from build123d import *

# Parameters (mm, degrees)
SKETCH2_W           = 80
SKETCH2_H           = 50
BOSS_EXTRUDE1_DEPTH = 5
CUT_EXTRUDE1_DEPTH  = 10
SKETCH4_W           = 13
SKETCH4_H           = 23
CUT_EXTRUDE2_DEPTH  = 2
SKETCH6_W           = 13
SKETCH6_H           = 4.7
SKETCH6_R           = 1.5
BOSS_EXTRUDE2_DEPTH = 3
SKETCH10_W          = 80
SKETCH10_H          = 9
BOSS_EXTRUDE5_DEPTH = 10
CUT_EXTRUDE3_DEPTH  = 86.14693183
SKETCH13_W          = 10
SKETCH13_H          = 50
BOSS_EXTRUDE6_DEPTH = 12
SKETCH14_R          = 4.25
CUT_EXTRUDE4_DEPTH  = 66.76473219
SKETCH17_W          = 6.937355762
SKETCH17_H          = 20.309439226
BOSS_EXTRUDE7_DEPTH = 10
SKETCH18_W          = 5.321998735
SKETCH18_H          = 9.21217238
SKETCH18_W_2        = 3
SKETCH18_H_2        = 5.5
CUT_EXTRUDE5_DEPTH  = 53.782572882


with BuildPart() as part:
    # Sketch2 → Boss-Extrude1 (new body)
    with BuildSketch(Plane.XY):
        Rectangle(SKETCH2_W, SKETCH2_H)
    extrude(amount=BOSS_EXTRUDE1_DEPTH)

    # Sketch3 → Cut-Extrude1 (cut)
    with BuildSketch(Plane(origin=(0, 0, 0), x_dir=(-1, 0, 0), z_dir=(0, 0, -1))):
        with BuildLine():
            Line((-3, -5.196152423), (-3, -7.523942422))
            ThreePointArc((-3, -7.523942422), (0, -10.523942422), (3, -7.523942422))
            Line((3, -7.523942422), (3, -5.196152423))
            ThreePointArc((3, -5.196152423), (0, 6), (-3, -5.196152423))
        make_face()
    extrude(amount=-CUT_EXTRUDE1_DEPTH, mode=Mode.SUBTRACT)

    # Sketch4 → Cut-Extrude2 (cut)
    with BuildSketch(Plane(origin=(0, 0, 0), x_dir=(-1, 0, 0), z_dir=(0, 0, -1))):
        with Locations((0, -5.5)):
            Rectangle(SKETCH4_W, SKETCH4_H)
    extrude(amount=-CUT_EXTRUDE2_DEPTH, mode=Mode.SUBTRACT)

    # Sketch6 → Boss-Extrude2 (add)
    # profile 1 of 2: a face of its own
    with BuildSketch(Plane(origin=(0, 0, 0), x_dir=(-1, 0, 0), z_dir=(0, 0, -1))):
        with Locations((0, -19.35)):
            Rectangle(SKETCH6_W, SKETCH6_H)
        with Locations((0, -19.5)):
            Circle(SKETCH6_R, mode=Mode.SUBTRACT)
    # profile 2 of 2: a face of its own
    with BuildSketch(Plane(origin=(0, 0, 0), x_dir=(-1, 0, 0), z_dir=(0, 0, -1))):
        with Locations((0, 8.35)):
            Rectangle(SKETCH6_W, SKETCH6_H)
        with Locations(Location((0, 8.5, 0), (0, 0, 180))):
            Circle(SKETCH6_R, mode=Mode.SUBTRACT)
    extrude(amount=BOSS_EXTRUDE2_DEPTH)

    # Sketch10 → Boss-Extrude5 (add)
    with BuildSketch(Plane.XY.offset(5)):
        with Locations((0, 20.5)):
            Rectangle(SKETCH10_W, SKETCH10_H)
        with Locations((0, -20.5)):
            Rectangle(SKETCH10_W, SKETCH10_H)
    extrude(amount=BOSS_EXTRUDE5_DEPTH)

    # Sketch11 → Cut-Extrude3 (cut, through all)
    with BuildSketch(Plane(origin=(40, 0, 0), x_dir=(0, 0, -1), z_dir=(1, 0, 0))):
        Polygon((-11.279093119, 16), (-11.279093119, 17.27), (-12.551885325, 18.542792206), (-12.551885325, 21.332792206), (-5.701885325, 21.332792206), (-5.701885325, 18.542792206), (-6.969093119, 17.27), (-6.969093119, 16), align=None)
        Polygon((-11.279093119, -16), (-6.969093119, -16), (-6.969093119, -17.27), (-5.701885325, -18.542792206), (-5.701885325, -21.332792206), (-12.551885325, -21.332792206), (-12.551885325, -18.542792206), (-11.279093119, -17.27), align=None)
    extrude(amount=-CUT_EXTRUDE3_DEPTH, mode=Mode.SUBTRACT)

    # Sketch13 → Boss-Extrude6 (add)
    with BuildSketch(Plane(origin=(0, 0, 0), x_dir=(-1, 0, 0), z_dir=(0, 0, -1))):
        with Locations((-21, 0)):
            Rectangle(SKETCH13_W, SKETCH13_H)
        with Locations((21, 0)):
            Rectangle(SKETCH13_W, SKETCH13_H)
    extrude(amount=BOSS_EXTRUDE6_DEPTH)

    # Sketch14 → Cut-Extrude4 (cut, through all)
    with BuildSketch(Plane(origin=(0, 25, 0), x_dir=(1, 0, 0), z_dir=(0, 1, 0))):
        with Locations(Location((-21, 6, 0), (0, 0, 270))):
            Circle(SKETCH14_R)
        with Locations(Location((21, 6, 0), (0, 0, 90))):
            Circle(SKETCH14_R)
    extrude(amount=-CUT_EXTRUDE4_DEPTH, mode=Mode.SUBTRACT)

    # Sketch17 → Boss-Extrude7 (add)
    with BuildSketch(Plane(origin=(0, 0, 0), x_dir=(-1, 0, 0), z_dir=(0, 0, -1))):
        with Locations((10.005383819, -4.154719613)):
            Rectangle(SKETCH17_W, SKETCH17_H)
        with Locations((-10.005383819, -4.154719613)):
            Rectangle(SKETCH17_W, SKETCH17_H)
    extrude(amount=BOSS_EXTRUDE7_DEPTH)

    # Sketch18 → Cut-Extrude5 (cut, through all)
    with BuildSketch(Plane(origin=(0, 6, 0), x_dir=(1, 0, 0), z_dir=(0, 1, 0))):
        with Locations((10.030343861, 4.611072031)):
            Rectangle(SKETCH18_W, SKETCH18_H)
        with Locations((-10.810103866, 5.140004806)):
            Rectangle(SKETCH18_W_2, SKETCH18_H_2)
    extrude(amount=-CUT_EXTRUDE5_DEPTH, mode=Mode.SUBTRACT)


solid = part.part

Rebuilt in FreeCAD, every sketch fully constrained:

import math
import FreeCAD as App
import Part
import Sketcher

V = App.Vector
Q = App.Units.Quantity

doc = App.newDocument("Part")
body = doc.addObject("PartDesign::Body", "Body")

sketch1 = doc.addObject("Sketcher::SketchObject", "Sketch")
body.addObject(sketch1)
sketch1.AttachmentSupport = (doc.XY_Plane, [""])
sketch1.MapMode = "FlatFace"
sketch1.addGeometry([
    Part.LineSegment(V(-40, 25, 0), V(-40, -25, 0)),
    Part.LineSegment(V(-40, -25, 0), V(40, -25, 0)),
    Part.LineSegment(V(40, -25, 0), V(40, 25, 0)),
    Part.LineSegment(V(40, 25, 0), V(-40, 25, 0)),
], False)
sketch1.addConstraint([
    Sketcher.Constraint("Coincident", 0, 2, 1, 1),
    Sketcher.Constraint("Coincident", 1, 2, 2, 1),
    Sketcher.Constraint("Coincident", 2, 2, 3, 1),
    Sketcher.Constraint("Coincident", 3, 2, 0, 1),
    Sketcher.Constraint("Vertical", 0),
    Sketcher.Constraint("Horizontal", 1),
    Sketcher.Constraint("Vertical", 2),
    Sketcher.Constraint("Horizontal", 3),
    Sketcher.Constraint("Symmetric", 0, 2, 2, 2, -1, 1),
    Sketcher.Constraint("DistanceX", 1, 1, 1, 2, Q("80 mm")),
    Sketcher.Constraint("DistanceY", 0, 2, 0, 1, Q("50 mm")),
])
pad1 = doc.addObject("PartDesign::Pad", "Pad")
body.addObject(pad1)
pad1.Profile = sketch1
pad1.Length = 5

sketch2 = doc.addObject("Sketcher::SketchObject", "Sketch001")
body.addObject(sketch2)
sketch2.AttachmentSupport = (doc.XY_Plane, [""])
sketch2.MapMode = "FlatFace"
sketch2.addGeometry([
    Part.LineSegment(V(3, -5.2, 0), V(3, -7.5, 0)),
    Part.ArcOfCircle(Part.Circle(V(0, -7.5, 0), V(0, 0, 1), 3), math.radians(180), math.radians(360)),
    Part.LineSegment(V(-3, -7.5, 0), V(-3, -5.2, 0)),
    Part.ArcOfCircle(Part.Circle(V(0, 0, 0), V(0, 0, 1), 6), math.radians(-60), math.radians(240)),
], False)
sketch2.addConstraint([
    Sketcher.Constraint("Tangent", 0, 2, 1, 2),
    Sketcher.Constraint("Tangent", 1, 1, 2, 1),
    Sketcher.Constraint("Coincident", 2, 2, 3, 2),
    Sketcher.Constraint("Coincident", 3, 1, 0, 1),
    Sketcher.Constraint("Vertical", 0),
    Sketcher.Constraint("Vertical", 2),
    Sketcher.Constraint("Coincident", 3, 3, -1, 1),
    Sketcher.Constraint("PointOnObject", 1, 3, -2),
    Sketcher.Constraint("Radius", 1, Q("3 mm")),
    Sketcher.Constraint("Radius", 3, Q("6 mm")),
    Sketcher.Constraint("DistanceY", 0, 2, 0, 1, Q("2.32779 mm")),
])
pocket1 = doc.addObject("PartDesign::Pocket", "Pocket")
body.addObject(pocket1)
pocket1.Profile = sketch2
pocket1.Length = 10
pocket1.Reversed = True

sketch3 = doc.addObject("Sketcher::SketchObject", "Sketch002")
body.addObject(sketch3)
sketch3.AttachmentSupport = (doc.XY_Plane, [""])
sketch3.MapMode = "FlatFace"
sketch3.addGeometry([
    Part.LineSegment(V(6, 6, 0), V(6, -17, 0)),
    Part.LineSegment(V(6, -17, 0), V(-6, -17, 0)),
    Part.LineSegment(V(-6, -17, 0), V(-6, 6, 0)),
    Part.LineSegment(V(-6, 6, 0), V(6, 6, 0)),
], False)
sketch3.addConstraint([
    Sketcher.Constraint("Coincident", 0, 2, 1, 1),
    Sketcher.Constraint("Coincident", 1, 2, 2, 1),
    Sketcher.Constraint("Coincident", 2, 2, 3, 1),
    Sketcher.Constraint("Coincident", 3, 2, 0, 1),
    Sketcher.Constraint("Vertical", 0),
    Sketcher.Constraint("Horizontal", 1),
    Sketcher.Constraint("Vertical", 2),
    Sketcher.Constraint("Horizontal", 3),
    Sketcher.Constraint("DistanceX", 1, 2, 1, 1, Q("13 mm")),
    Sketcher.Constraint("DistanceY", 0, 2, 0, 1, Q("23 mm")),
    Sketcher.Constraint("DistanceY", 0, 2, -1, 1, Q("17 mm")),
    Sketcher.Constraint("DistanceX", -1, 1, 0, 2, Q("6.5 mm")),
])
pocket2 = doc.addObject("PartDesign::Pocket", "Pocket001")
body.addObject(pocket2)
pocket2.Profile = sketch3
pocket2.Length = 2
pocket2.Reversed = True

sketch4 = doc.addObject("Sketcher::SketchObject", "Sketch003")
body.addObject(sketch4)
sketch4.AttachmentSupport = (doc.XY_Plane, [""])
sketch4.MapMode = "FlatFace"
sketch4.addGeometry([
    Part.LineSegment(V(6.5, -17, 0), V(6.5, -21.7, 0)),
    Part.LineSegment(V(6.5, -21.7, 0), V(-6.5, -21.7, 0)),
    Part.LineSegment(V(-6.5, -21.7, 0), V(-6.5, -17, 0)),
    Part.LineSegment(V(-6.5, -17, 0), V(6.5, -17, 0)),
    Part.Circle(V(0, -19.5, 0), V(0, 0, 1), 1.5),
    Part.LineSegment(V(6.5, 10.7, 0), V(6.5, 6, 0)),
    Part.LineSegment(V(6.5, 6, 0), V(-6.5, 6, 0)),
    Part.LineSegment(V(-6.5, 6, 0), V(-6.5, 10.7, 0)),
    Part.LineSegment(V(-6.5, 10.7, 0), V(6.5, 10.7, 0)),
    Part.Circle(V(0, 8.5, 0), V(0, 0, 1), 1.5),
], False)
sketch4.addConstraint([
    Sketcher.Constraint("Coincident", 0, 2, 1, 1),
    Sketcher.Constraint("Coincident", 1, 2, 2, 1),
    Sketcher.Constraint("Coincident", 2, 2, 3, 1),
    Sketcher.Constraint("Coincident", 3, 2, 0, 1),
    Sketcher.Constraint("Coincident", 5, 2, 6, 1),
    Sketcher.Constraint("Coincident", 6, 2, 7, 1),
    Sketcher.Constraint("Coincident", 7, 2, 8, 1),
    Sketcher.Constraint("Coincident", 8, 2, 5, 1),
    Sketcher.Constraint("Vertical", 0),
    Sketcher.Constraint("Horizontal", 1),
    Sketcher.Constraint("Vertical", 2),
    Sketcher.Constraint("Horizontal", 3),
    Sketcher.Constraint("Vertical", 5),
    Sketcher.Constraint("Horizontal", 6),
    Sketcher.Constraint("Vertical", 7),
    Sketcher.Constraint("Horizontal", 8),
    Sketcher.Constraint("Equal", 4, 9),
    Sketcher.Constraint("PointOnObject", 4, 3, -2),
    Sketcher.Constraint("PointOnObject", 9, 3, -2),
    Sketcher.Constraint("Vertical", 3, 2, 5, 2),
    Sketcher.Constraint("Vertical", 2, 2, 6, 2),
    Sketcher.Constraint("Equal", 2, 5),
    Sketcher.Constraint("Diameter", 4, Q("3 mm")),
    Sketcher.Constraint("DistanceX", 1, 2, 1, 1, Q("13 mm")),
    Sketcher.Constraint("DistanceY", 0, 2, 0, 1, Q("4.7 mm")),
    Sketcher.Constraint("DistanceY", 2, 2, -1, 1, Q("17 mm")),
    Sketcher.Constraint("DistanceY", -1, 1, 5, 2, Q("6 mm")),
    Sketcher.Constraint("DistanceY", 4, 3, 9, 3, Q("28 mm")),
    Sketcher.Constraint("DistanceY", 4, 3, -1, 1, Q("19.5 mm")),
    Sketcher.Constraint("DistanceX", -1, 1, 0, 2, Q("6.5 mm")),
])
pad2 = doc.addObject("PartDesign::Pad", "Pad001")
body.addObject(pad2)
pad2.Profile = sketch4
pad2.Length = 3
pad2.Reversed = True

sketch5 = doc.addObject("Sketcher::SketchObject", "Sketch004")
body.addObject(sketch5)
sketch5.AttachmentSupport = (doc.XY_Plane, [""])
sketch5.MapMode = "FlatFace"
sketch5.AttachmentOffset = App.Placement(V(0, 0, 5), App.Rotation())
sketch5.addGeometry([
    Part.LineSegment(V(-40, 25, 0), V(-40, 16, 0)),
    Part.LineSegment(V(-40, 16, 0), V(40, 16, 0)),
    Part.LineSegment(V(40, 16, 0), V(40, 25, 0)),
    Part.LineSegment(V(40, 25, 0), V(-40, 25, 0)),
    Part.LineSegment(V(-40, -16, 0), V(-40, -25, 0)),
    Part.LineSegment(V(-40, -25, 0), V(40, -25, 0)),
    Part.LineSegment(V(40, -25, 0), V(40, -16, 0)),
    Part.LineSegment(V(40, -16, 0), V(-40, -16, 0)),
], False)
sketch5.addConstraint([
    Sketcher.Constraint("Coincident", 0, 2, 1, 1),
    Sketcher.Constraint("Coincident", 1, 2, 2, 1),
    Sketcher.Constraint("Coincident", 2, 2, 3, 1),
    Sketcher.Constraint("Coincident", 3, 2, 0, 1),
    Sketcher.Constraint("Coincident", 4, 2, 5, 1),
    Sketcher.Constraint("Coincident", 5, 2, 6, 1),
    Sketcher.Constraint("Coincident", 6, 2, 7, 1),
    Sketcher.Constraint("Coincident", 7, 2, 4, 1),
    Sketcher.Constraint("Vertical", 0),
    Sketcher.Constraint("Horizontal", 1),
    Sketcher.Constraint("Vertical", 2),
    Sketcher.Constraint("Horizontal", 3),
    Sketcher.Constraint("Vertical", 4),
    Sketcher.Constraint("Horizontal", 5),
    Sketcher.Constraint("Vertical", 6),
    Sketcher.Constraint("Horizontal", 7),
    Sketcher.Constraint("Symmetric", 2, 2, 4, 2, -1, 1),
    Sketcher.Constraint("Symmetric", 0, 2, 6, 2, -1, 1),
    Sketcher.Constraint("Vertical", 3, 2, 4, 2),
    Sketcher.Constraint("DistanceX", 1, 1, 1, 2, Q("80 mm")),
    Sketcher.Constraint("DistanceY", 0, 2, 0, 1, Q("9 mm")),
    Sketcher.Constraint("DistanceY", -1, 1, 0, 2, Q("16 mm")),
])
pad3 = doc.addObject("PartDesign::Pad", "Pad002")
body.addObject(pad3)
pad3.Profile = sketch5
pad3.Length = 10

sketch6 = doc.addObject("Sketcher::SketchObject", "Sketch005")
body.addObject(sketch6)
sketch6.AttachmentSupport = (doc.YZ_Plane, [""])
sketch6.MapMode = "FlatFace"
sketch6.AttachmentOffset = App.Placement(V(0, 0, 40), App.Rotation())
sketch6.addGeometry([
    Part.LineSegment(V(17.3, 11.3, 0), V(16, 11.3, 0)),
    Part.LineSegment(V(16, 11.3, 0), V(16, 7, 0)),
    Part.LineSegment(V(16, 7, 0), V(17.3, 7, 0)),
    Part.LineSegment(V(17.3, 7, 0), V(18.5, 5.7, 0)),
    Part.LineSegment(V(18.5, 5.7, 0), V(21.3, 5.7, 0)),
    Part.LineSegment(V(21.3, 5.7, 0), V(21.3, 12.6, 0)),
    Part.LineSegment(V(21.3, 12.6, 0), V(18.5, 12.6, 0)),
    Part.LineSegment(V(18.5, 12.6, 0), V(17.3, 11.3, 0)),
    Part.LineSegment(V(-16, 7, 0), V(-16, 11.3, 0)),
    Part.LineSegment(V(-16, 11.3, 0), V(-17.3, 11.3, 0)),
    Part.LineSegment(V(-17.3, 11.3, 0), V(-18.5, 12.6, 0)),
    Part.LineSegment(V(-18.5, 12.6, 0), V(-21.3, 12.6, 0)),
    Part.LineSegment(V(-21.3, 12.6, 0), V(-21.3, 5.7, 0)),
    Part.LineSegment(V(-21.3, 5.7, 0), V(-18.5, 5.7, 0)),
    Part.LineSegment(V(-18.5, 5.7, 0), V(-17.3, 7, 0)),
    Part.LineSegment(V(-17.3, 7, 0), V(-16, 7, 0)),
], False)
sketch6.addConstraint([
    Sketcher.Constraint("Coincident", 0, 2, 1, 1),
    Sketcher.Constraint("Coincident", 1, 2, 2, 1),
    Sketcher.Constraint("Coincident", 2, 2, 3, 1),
    Sketcher.Constraint("Coincident", 3, 2, 4, 1),
    Sketcher.Constraint("Coincident", 4, 2, 5, 1),
    Sketcher.Constraint("Coincident", 5, 2, 6, 1),
    Sketcher.Constraint("Coincident", 6, 2, 7, 1),
    Sketcher.Constraint("Coincident", 7, 2, 0, 1),
    Sketcher.Constraint("Coincident", 8, 2, 9, 1),
    Sketcher.Constraint("Coincident", 9, 2, 10, 1),
    Sketcher.Constraint("Coincident", 10, 2, 11, 1),
    Sketcher.Constraint("Coincident", 11, 2, 12, 1),
    Sketcher.Constraint("Coincident", 12, 2, 13, 1),
    Sketcher.Constraint("Coincident", 13, 2, 14, 1),
    Sketcher.Constraint("Coincident", 14, 2, 15, 1),
    Sketcher.Constraint("Coincident", 15, 2, 8, 1),
    Sketcher.Constraint("Horizontal", 0),
    Sketcher.Constraint("Vertical", 1),
    Sketcher.Constraint("Horizontal", 2),
    Sketcher.Constraint("Horizontal", 4),
    Sketcher.Constraint("Vertical", 5),
    Sketcher.Constraint("Horizontal", 6),
    Sketcher.Constraint("Vertical", 8),
    Sketcher.Constraint("Horizontal", 9),
    Sketcher.Constraint("Horizontal", 11),
    Sketcher.Constraint("Vertical", 12),
    Sketcher.Constraint("Horizontal", 13),
    Sketcher.Constraint("Horizontal", 15),
    Sketcher.Constraint("Symmetric", 0, 2, 8, 2, -2),
    Sketcher.Constraint("Symmetric", 6, 2, 10, 2, -2),
    Sketcher.Constraint("Symmetric", 4, 2, 12, 2, -2),
    Sketcher.Constraint("Symmetric", 2, 2, 14, 2, -2),
    Sketcher.Constraint("Perpendicular", 7, 10),
    Sketcher.Constraint("Vertical", 3, 2, 6, 2),
    Sketcher.Constraint("Vertical", 2, 2, 7, 2),
    Sketcher.Constraint("Vertical", 10, 2, 13, 2),
    Sketcher.Constraint("Vertical", 9, 2, 14, 2),
    Sketcher.Constraint("DistanceX", -1, 1, 0, 2, Q("16 mm")),
    Sketcher.Constraint("Distance", 7, Q("1.8 mm")),
    Sketcher.Constraint("DistanceX", 0, 2, 0, 1, Q("1.27 mm")),
    Sketcher.Constraint("DistanceX", 4, 1, 4, 2, Q("2.79 mm")),
    Sketcher.Constraint("DistanceY", 1, 2, 1, 1, Q("4.31 mm")),
    Sketcher.Constraint("DistanceY", 5, 1, 5, 2, Q("6.85 mm")),
    Sketcher.Constraint("DistanceY", -1, 1, 0, 2, Q("11.279093 mm")),
])
pocket3 = doc.addObject("PartDesign::Pocket", "Pocket002")
body.addObject(pocket3)
pocket3.Profile = sketch6
pocket3.Type = "ThroughAll"

sketch7 = doc.addObject("Sketcher::SketchObject", "Sketch006")
body.addObject(sketch7)
sketch7.AttachmentSupport = (doc.XY_Plane, [""])
sketch7.MapMode = "FlatFace"
sketch7.addGeometry([
    Part.LineSegment(V(26, 25, 0), V(26, -25, 0)),
    Part.LineSegment(V(26, -25, 0), V(16, -25, 0)),
    Part.LineSegment(V(16, -25, 0), V(16, 25, 0)),
    Part.LineSegment(V(16, 25, 0), V(26, 25, 0)),
    Part.LineSegment(V(-16, 25, 0), V(-16, -25, 0)),
    Part.LineSegment(V(-16, -25, 0), V(-26, -25, 0)),
    Part.LineSegment(V(-26, -25, 0), V(-26, 25, 0)),
    Part.LineSegment(V(-26, 25, 0), V(-16, 25, 0)),
], False)
sketch7.addConstraint([
    Sketcher.Constraint("Coincident", 0, 2, 1, 1),
    Sketcher.Constraint("Coincident", 1, 2, 2, 1),
    Sketcher.Constraint("Coincident", 2, 2, 3, 1),
    Sketcher.Constraint("Coincident", 3, 2, 0, 1),
    Sketcher.Constraint("Coincident", 4, 2, 5, 1),
    Sketcher.Constraint("Coincident", 5, 2, 6, 1),
    Sketcher.Constraint("Coincident", 6, 2, 7, 1),
    Sketcher.Constraint("Coincident", 7, 2, 4, 1),
    Sketcher.Constraint("Vertical", 0),
    Sketcher.Constraint("Horizontal", 1),
    Sketcher.Constraint("Vertical", 2),
    Sketcher.Constraint("Horizontal", 3),
    Sketcher.Constraint("Vertical", 4),
    Sketcher.Constraint("Horizontal", 5),
    Sketcher.Constraint("Vertical", 6),
    Sketcher.Constraint("Horizontal", 7),
    Sketcher.Constraint("Symmetric", 2, 2, 4, 2, -1, 1),
    Sketcher.Constraint("Symmetric", 0, 2, 6, 2, -1, 1),
    Sketcher.Constraint("Horizontal", 1, 2, 4, 2),
    Sketcher.Constraint("DistanceX", 1, 2, 1, 1, Q("10 mm")),
    Sketcher.Constraint("DistanceY", 0, 2, 0, 1, Q("50 mm")),
    Sketcher.Constraint("DistanceX", -1, 1, 0, 2, Q("26 mm")),
])
pad4 = doc.addObject("PartDesign::Pad", "Pad003")
body.addObject(pad4)
pad4.Profile = sketch7
pad4.Length = 12
pad4.Reversed = True

sketch8 = doc.addObject("Sketcher::SketchObject", "Sketch007")
body.addObject(sketch8)
sketch8.AttachmentSupport = (doc.XZ_Plane, [""])
sketch8.MapMode = "FlatFace"
sketch8.AttachmentOffset = App.Placement(V(0, 0, -25), App.Rotation())
sketch8.addGeometry([
    Part.Circle(V(-21, -6, 0), V(0, 0, 1), 4.2),
    Part.Circle(V(21, -6, 0), V(0, 0, 1), 4.2),
], False)
sketch8.addConstraint([
    Sketcher.Constraint("Equal", 0, 1),
    Sketcher.Constraint("Symmetric", 0, 3, 1, 3, -2),
    Sketcher.Constraint("Diameter", 0, Q("8.5 mm")),
    Sketcher.Constraint("DistanceX", 0, 3, -1, 1, Q("21 mm")),
    Sketcher.Constraint("DistanceY", 0, 3, -1, 1, Q("6 mm")),
])
pocket4 = doc.addObject("PartDesign::Pocket", "Pocket003")
body.addObject(pocket4)
pocket4.Profile = sketch8
pocket4.Type = "ThroughAll"
pocket4.Reversed = True

sketch9 = doc.addObject("Sketcher::SketchObject", "Sketch008")
body.addObject(sketch9)
sketch9.AttachmentSupport = (doc.XY_Plane, [""])
sketch9.MapMode = "FlatFace"
sketch9.addGeometry([
    Part.LineSegment(V(-7, 6, 0), V(-7, -14, 0)),
    Part.LineSegment(V(-7, -14, 0), V(-13, -14, 0)),
    Part.LineSegment(V(-13, -14, 0), V(-13, 6, 0)),
    Part.LineSegment(V(-13, 6, 0), V(-7, 6, 0)),
    Part.LineSegment(V(13, 6, 0), V(13, -14, 0)),
    Part.LineSegment(V(13, -14, 0), V(7, -14, 0)),
    Part.LineSegment(V(7, -14, 0), V(7, 6, 0)),
    Part.LineSegment(V(7, 6, 0), V(13, 6, 0)),
], False)
sketch9.addConstraint([
    Sketcher.Constraint("Coincident", 0, 2, 1, 1),
    Sketcher.Constraint("Coincident", 1, 2, 2, 1),
    Sketcher.Constraint("Coincident", 2, 2, 3, 1),
    Sketcher.Constraint("Coincident", 3, 2, 0, 1),
    Sketcher.Constraint("Coincident", 4, 2, 5, 1),
    Sketcher.Constraint("Coincident", 5, 2, 6, 1),
    Sketcher.Constraint("Coincident", 6, 2, 7, 1),
    Sketcher.Constraint("Coincident", 7, 2, 4, 1),
    Sketcher.Constraint("Vertical", 0),
    Sketcher.Constraint("Horizontal", 1),
    Sketcher.Constraint("Vertical", 2),
    Sketcher.Constraint("Horizontal", 3),
    Sketcher.Constraint("Vertical", 4),
    Sketcher.Constraint("Horizontal", 5),
    Sketcher.Constraint("Vertical", 6),
    Sketcher.Constraint("Horizontal", 7),
    Sketcher.Constraint("Symmetric", 1, 2, 4, 2, -2),
    Sketcher.Constraint("Symmetric", 3, 2, 6, 2, -2),
    Sketcher.Constraint("DistanceY", -1, 1, 2, 2, Q("6 mm")),
    Sketcher.Constraint("DistanceY", 0, 2, 0, 1, Q("20.309439 mm")),
    Sketcher.Constraint("DistanceX", 1, 2, 1, 1, Q("6.937356 mm")),
    Sketcher.Constraint("DistanceX", 1, 2, -1, 1, Q("13.474062 mm")),
])
pad5 = doc.addObject("PartDesign::Pad", "Pad004")
body.addObject(pad5)
pad5.Profile = sketch9
pad5.Length = 10
pad5.Reversed = True

sketch10 = doc.addObject("Sketcher::SketchObject", "Sketch009")
body.addObject(sketch10)
sketch10.AttachmentSupport = (doc.XZ_Plane, [""])
sketch10.MapMode = "FlatFace"
sketch10.AttachmentOffset = App.Placement(V(0, 0, -6), App.Rotation())
sketch10.addGeometry([
    Part.LineSegment(V(7.4, -9.2, 0), V(7.4, 0, 0)),
    Part.LineSegment(V(7.4, 0, 0), V(12.7, 0, 0)),
    Part.LineSegment(V(12.7, 0, 0), V(12.7, -9.2, 0)),
    Part.LineSegment(V(12.7, -9.2, 0), V(7.4, -9.2, 0)),
    Part.LineSegment(V(-12.3, -7.9, 0), V(-12.3, -2.4, 0)),
    Part.LineSegment(V(-12.3, -2.4, 0), V(-9.3, -2.4, 0)),
    Part.LineSegment(V(-9.3, -2.4, 0), V(-9.3, -7.9, 0)),
    Part.LineSegment(V(-9.3, -7.9, 0), V(-12.3, -7.9, 0)),
], False)
sketch10.addConstraint([
    Sketcher.Constraint("Coincident", 0, 2, 1, 1),
    Sketcher.Constraint("Coincident", 1, 2, 2, 1),
    Sketcher.Constraint("Coincident", 2, 2, 3, 1),
    Sketcher.Constraint("Coincident", 3, 2, 0, 1),
    Sketcher.Constraint("Coincident", 4, 2, 5, 1),
    Sketcher.Constraint("Coincident", 5, 2, 6, 1),
    Sketcher.Constraint("Coincident", 6, 2, 7, 1),
    Sketcher.Constraint("Coincident", 7, 2, 4, 1),
    Sketcher.Constraint("Vertical", 0),
    Sketcher.Constraint("Horizontal", 1),
    Sketcher.Constraint("Vertical", 2),
    Sketcher.Constraint("Horizontal", 3),
    Sketcher.Constraint("Vertical", 4),
    Sketcher.Constraint("Horizontal", 5),
    Sketcher.Constraint("Vertical", 6),
    Sketcher.Constraint("Horizontal", 7),
    Sketcher.Constraint("DistanceX", 5, 1, 5, 2, Q("3 mm")),
    Sketcher.Constraint("DistanceY", 4, 1, 4, 2, Q("5.5 mm")),
    Sketcher.Constraint("DistanceX", 1, 1, 1, 2, Q("5.321999 mm")),
    Sketcher.Constraint("DistanceY", 0, 1, 0, 2, Q("9.212172 mm")),
    Sketcher.Constraint("DistanceY", 2, 2, -1, 1, Q("9.217158 mm")),
    Sketcher.Constraint("DistanceX", 4, 2, 0, 2, Q("19.679448 mm")),
    Sketcher.Constraint("DistanceY", 4, 2, 0, 2, Q("2.385019 mm")),
    Sketcher.Constraint("DistanceX", -1, 1, 0, 2, Q("7.369344 mm")),
])
pocket5 = doc.addObject("PartDesign::Pocket", "Pocket004")
body.addObject(pocket5)
pocket5.Profile = sketch10
pocket5.Type = "ThroughAll"
pocket5.Reversed = True

doc.recompute()
